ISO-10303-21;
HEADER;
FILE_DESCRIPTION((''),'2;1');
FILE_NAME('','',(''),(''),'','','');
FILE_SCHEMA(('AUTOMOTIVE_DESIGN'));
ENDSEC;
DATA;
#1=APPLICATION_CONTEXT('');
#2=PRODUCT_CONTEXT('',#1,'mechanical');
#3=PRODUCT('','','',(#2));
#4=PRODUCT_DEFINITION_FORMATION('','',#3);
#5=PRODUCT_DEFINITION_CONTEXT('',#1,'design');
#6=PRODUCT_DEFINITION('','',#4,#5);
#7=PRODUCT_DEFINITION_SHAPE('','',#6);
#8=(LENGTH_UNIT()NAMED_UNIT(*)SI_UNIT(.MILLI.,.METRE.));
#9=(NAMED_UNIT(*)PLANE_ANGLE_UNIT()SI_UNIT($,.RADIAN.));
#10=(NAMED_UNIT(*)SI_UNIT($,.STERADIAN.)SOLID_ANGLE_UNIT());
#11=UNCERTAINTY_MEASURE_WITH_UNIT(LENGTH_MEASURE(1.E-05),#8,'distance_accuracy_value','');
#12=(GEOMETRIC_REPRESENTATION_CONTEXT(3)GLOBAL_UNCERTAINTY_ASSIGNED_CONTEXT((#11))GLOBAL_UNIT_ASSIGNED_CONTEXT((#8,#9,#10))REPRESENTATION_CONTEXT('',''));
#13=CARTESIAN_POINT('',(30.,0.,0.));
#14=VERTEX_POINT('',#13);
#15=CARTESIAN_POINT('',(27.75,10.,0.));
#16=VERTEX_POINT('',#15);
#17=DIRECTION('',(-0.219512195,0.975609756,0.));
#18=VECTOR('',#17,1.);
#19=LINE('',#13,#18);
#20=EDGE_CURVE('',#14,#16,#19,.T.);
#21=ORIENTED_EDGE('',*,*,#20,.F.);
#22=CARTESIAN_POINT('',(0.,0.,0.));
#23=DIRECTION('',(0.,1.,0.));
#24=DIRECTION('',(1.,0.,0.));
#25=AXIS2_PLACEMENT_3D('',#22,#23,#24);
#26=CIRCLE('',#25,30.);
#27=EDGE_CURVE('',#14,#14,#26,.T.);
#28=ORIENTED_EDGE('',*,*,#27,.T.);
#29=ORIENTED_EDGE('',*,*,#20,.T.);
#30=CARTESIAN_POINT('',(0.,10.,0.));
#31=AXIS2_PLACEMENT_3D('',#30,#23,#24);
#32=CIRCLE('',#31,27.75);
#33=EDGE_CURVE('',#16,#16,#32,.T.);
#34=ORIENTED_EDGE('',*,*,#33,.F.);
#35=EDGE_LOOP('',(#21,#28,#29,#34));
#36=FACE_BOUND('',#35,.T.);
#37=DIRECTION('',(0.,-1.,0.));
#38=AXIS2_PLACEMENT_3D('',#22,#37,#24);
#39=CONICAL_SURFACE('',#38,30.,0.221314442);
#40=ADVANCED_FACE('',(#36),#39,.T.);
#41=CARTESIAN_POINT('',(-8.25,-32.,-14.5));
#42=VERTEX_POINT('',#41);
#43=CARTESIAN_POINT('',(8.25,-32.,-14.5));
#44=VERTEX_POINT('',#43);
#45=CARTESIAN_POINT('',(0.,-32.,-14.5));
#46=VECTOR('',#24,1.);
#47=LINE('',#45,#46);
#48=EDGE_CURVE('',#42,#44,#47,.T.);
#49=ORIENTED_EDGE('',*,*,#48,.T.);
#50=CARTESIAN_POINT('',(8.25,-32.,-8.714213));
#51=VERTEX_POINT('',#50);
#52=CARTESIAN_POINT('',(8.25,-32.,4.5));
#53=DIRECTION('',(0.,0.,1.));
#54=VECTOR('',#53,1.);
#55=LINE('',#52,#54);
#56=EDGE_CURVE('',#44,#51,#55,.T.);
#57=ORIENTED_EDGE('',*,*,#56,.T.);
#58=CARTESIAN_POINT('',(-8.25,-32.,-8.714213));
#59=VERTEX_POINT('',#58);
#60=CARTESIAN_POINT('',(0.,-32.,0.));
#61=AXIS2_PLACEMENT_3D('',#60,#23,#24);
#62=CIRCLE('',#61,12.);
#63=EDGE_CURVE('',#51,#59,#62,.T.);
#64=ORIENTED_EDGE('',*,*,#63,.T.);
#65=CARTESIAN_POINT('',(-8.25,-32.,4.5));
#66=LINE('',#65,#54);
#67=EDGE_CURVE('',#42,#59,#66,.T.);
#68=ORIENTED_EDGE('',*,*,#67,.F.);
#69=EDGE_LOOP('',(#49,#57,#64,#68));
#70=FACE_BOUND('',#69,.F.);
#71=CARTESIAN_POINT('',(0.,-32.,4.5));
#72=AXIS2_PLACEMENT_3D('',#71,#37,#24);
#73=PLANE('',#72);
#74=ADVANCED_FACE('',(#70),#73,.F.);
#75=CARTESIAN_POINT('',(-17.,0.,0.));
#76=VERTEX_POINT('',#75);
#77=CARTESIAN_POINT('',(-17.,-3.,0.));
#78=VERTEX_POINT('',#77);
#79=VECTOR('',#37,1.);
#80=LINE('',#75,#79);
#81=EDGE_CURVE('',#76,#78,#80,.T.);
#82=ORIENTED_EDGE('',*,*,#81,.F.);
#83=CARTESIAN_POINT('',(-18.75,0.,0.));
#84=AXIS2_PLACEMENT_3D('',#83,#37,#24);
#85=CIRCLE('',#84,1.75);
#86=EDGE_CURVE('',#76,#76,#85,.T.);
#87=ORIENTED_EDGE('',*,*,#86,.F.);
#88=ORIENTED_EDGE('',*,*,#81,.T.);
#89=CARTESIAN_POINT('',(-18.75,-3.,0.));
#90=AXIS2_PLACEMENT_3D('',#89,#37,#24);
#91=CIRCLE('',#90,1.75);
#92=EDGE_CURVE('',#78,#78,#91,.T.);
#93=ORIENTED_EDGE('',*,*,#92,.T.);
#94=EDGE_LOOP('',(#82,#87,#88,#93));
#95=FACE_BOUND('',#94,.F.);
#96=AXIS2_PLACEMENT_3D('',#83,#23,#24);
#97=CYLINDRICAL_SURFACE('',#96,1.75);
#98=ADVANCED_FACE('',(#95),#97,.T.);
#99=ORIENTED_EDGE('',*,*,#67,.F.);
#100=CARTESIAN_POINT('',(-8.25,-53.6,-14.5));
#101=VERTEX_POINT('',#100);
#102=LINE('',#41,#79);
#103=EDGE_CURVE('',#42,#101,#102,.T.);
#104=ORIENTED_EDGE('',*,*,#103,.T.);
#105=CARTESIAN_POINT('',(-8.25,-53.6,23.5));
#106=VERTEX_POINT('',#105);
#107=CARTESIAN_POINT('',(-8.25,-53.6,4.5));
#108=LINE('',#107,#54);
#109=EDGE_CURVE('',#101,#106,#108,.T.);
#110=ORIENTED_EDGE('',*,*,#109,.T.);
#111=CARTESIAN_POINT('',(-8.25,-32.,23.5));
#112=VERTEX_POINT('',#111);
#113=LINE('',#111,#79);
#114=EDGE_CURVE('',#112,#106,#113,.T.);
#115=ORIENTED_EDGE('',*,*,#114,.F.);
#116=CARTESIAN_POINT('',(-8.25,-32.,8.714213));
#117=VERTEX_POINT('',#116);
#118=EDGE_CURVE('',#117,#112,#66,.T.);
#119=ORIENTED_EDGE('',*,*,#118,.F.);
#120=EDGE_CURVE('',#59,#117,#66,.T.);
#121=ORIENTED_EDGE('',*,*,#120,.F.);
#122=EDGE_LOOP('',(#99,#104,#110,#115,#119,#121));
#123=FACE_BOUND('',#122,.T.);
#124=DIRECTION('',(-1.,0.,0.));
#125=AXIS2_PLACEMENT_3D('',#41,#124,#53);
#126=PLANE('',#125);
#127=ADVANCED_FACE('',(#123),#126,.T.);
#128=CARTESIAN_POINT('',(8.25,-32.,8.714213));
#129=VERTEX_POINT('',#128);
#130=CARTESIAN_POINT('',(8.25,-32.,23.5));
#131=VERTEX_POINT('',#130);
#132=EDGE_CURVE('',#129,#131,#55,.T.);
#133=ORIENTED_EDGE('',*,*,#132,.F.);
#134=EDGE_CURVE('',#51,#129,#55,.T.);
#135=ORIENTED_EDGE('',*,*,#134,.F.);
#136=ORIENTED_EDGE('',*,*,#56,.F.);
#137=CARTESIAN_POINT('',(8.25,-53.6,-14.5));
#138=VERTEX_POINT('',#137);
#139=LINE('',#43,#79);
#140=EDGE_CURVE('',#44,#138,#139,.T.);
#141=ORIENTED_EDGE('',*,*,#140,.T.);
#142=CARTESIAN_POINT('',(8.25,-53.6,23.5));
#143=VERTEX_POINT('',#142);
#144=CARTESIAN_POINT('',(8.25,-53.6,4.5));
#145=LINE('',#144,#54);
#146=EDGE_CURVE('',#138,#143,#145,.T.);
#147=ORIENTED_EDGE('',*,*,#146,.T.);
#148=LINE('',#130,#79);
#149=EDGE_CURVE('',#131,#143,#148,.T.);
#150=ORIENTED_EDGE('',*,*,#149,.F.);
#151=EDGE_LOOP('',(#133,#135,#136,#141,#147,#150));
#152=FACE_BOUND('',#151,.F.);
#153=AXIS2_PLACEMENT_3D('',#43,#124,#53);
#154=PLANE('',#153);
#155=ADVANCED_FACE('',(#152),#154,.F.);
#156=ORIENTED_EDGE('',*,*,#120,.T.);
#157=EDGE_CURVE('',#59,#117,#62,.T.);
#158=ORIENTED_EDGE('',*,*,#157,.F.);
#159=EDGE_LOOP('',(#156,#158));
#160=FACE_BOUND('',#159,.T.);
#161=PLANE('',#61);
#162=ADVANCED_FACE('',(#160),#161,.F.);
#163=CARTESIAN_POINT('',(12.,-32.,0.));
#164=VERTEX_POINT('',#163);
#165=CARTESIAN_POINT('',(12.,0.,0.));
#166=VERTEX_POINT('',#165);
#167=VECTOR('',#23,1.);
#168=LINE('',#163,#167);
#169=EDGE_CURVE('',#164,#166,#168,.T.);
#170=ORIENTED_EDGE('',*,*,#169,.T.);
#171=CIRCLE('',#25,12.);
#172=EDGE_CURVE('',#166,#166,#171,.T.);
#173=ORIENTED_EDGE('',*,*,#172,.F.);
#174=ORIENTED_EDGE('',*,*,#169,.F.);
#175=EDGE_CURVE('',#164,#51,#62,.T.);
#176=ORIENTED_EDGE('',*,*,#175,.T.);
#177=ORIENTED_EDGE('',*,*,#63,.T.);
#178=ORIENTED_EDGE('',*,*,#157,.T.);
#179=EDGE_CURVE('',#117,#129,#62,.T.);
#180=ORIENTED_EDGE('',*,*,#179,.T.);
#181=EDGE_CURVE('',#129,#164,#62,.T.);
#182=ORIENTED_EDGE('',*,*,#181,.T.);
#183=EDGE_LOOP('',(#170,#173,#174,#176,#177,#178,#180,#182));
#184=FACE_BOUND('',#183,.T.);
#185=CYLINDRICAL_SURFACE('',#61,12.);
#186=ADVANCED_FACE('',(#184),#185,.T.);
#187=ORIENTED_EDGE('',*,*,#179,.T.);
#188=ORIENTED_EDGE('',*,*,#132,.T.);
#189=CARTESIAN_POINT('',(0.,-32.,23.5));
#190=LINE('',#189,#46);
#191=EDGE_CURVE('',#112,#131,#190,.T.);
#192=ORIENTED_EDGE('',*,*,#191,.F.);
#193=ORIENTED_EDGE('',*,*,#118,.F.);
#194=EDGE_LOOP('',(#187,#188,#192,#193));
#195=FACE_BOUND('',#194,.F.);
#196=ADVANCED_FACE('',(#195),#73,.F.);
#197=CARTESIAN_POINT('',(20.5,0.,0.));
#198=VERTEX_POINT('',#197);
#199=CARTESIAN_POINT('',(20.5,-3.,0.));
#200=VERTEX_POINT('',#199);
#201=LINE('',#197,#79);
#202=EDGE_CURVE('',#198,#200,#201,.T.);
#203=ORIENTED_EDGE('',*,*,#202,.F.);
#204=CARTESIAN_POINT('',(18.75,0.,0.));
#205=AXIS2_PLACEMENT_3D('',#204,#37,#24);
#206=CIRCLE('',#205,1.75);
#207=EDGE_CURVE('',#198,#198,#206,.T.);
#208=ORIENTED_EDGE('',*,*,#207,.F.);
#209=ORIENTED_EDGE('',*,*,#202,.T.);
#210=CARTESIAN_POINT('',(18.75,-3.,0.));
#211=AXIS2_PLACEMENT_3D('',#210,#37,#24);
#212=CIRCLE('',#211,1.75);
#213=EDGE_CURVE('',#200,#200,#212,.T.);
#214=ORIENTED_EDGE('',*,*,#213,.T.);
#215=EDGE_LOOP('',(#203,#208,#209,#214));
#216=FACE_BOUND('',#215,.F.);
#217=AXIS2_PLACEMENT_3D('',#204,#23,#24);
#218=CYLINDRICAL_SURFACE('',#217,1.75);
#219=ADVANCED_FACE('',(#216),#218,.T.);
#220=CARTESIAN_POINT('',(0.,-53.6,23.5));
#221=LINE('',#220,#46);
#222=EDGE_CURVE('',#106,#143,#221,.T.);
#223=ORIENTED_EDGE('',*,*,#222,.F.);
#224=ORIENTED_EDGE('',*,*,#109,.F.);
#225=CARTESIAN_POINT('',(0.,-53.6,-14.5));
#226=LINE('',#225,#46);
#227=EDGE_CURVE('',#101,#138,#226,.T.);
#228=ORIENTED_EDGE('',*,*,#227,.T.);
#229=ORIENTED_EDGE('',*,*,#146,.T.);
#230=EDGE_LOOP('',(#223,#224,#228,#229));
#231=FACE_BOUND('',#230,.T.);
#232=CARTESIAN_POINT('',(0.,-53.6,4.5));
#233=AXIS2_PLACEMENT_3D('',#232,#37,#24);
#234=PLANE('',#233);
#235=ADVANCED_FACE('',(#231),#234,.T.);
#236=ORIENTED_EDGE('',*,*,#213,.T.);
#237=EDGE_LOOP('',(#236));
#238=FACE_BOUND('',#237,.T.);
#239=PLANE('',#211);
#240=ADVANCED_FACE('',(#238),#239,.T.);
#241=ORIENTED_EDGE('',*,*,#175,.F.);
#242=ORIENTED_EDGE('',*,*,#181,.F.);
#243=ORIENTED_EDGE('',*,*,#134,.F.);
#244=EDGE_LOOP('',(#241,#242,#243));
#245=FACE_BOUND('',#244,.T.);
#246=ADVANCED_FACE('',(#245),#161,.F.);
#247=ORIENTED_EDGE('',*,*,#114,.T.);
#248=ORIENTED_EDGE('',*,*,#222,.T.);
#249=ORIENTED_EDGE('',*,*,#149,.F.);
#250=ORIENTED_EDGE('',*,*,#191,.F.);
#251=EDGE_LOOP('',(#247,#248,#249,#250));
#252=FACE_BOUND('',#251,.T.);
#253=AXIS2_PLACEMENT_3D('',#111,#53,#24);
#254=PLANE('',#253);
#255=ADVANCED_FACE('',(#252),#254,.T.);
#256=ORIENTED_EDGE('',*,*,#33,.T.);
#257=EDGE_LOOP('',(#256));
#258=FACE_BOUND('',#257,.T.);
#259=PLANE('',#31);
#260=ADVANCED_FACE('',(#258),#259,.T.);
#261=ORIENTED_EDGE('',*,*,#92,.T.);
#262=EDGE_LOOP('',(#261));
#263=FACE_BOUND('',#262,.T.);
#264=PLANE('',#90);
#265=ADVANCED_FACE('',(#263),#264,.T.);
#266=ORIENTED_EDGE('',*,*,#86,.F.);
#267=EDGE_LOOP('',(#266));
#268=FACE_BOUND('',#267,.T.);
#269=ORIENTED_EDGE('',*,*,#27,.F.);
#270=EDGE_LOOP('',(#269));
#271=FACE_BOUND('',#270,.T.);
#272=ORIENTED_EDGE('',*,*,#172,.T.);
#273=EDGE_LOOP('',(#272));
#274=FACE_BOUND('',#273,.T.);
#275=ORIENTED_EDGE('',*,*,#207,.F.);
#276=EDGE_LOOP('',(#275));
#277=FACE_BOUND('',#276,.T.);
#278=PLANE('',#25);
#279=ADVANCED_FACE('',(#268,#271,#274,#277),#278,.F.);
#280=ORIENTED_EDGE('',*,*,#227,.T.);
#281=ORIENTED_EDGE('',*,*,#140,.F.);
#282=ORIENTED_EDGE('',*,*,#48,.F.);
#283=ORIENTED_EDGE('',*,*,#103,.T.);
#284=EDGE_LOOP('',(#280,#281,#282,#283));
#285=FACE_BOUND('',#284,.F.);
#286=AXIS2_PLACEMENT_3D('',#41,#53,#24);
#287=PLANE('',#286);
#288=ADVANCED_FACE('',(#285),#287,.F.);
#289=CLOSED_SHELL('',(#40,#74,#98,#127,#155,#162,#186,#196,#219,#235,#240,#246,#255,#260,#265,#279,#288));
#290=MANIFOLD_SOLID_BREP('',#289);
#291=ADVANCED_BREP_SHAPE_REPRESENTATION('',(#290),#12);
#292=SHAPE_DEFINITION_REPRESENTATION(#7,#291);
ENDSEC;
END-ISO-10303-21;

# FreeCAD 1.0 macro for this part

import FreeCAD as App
import Part
import Sketcher

V = App.Vector
Q = App.Units.Quantity

doc = App.newDocument("Part")
body = doc.addObject("PartDesign::Body", "Body")

# Sketch on XY plane
sketch1 = body.newObject("Sketcher::SketchObject", "Sketch")
sketch1.AttachmentSupport = (doc.getObject("XY_Plane"), [""])
sketch1.MapMode = "FlatFace"
sketch1.addGeometry([
    Part.LineSegment(V(0, -32, 0), V(12, -32, 0)),  # 0
    Part.LineSegment(V(12, -32, 0), V(12, 0, 0)),  # 1
    Part.LineSegment(V(12, 0, 0), V(30, 0, 0)),  # 2
    Part.LineSegment(V(30, 0, 0), V(28, 10, 0)),  # 3
    Part.LineSegment(V(28, 10, 0), V(0, 10, 0)),  # 4
    Part.LineSegment(V(0, 10, 0), V(0, -32, 0)),  # 5
], False)
sketch1.addConstraint([
    Sketcher.Constraint("Coincident", 0, 2, 1, 1),
    Sketcher.Constraint("Coincident", 1, 2, 2, 1),
    Sketcher.Constraint("Coincident", 2, 2, 3, 1),
    Sketcher.Constraint("Coincident", 3, 2, 4, 1),
    Sketcher.Constraint("Coincident", 4, 2, 5, 1),
    Sketcher.Constraint("Coincident", 5, 2, 0, 1),
    Sketcher.Constraint("Horizontal", 0),
    Sketcher.Constraint("Vertical", 1),
    Sketcher.Constraint("Horizontal", 2),
    Sketcher.Constraint("Horizontal", 4),
    Sketcher.Constraint("Vertical", 5),
    Sketcher.Constraint("PointOnObject", 1, 2, -1),
    Sketcher.Constraint("PointOnObject", 4, 2, -2),
    Sketcher.Constraint("DistanceX", 0, 1, 0, 2, Q("12 mm")),
    Sketcher.Constraint("DistanceX", 2, 1, 2, 2, Q("18 mm")),
    Sketcher.Constraint("DistanceY", 1, 1, 1, 2, Q("32 mm")),
    Sketcher.Constraint("DistanceY", 5, 2, 5, 1, Q("42 mm")),
    Sketcher.Constraint("DistanceX", 4, 2, 4, 1, Q("27.75 mm")),
])
revolution = body.newObject("PartDesign::Revolution", "Revolution")
revolution.Profile = sketch1
revolution.ReferenceAxis = (sketch1, ["V_Axis"])
revolution.Angle = 360

# Sketch on XZ plane
sketch2 = body.newObject("Sketcher::SketchObject", "Sketch001")
sketch2.AttachmentSupport = (doc.getObject("XZ_Plane"), [""])
sketch2.MapMode = "FlatFace"
sketch2.addGeometry([
    Part.Circle(V(18.8, 0, 0), V(0, 0, 1), 1.8),
    Part.Circle(V(-18.8, 0, 0), V(0, 0, 1), 1.8),
], False)
sketch2.addConstraint([
    Sketcher.Constraint("Equal", 0, 1),
    Sketcher.Constraint("Symmetric", 0, 3, 1, 3, -1, 1),
    Sketcher.Constraint("PointOnObject", 0, 3, -1),
    Sketcher.Constraint("Diameter", 0, Q("3.5 mm")),
    Sketcher.Constraint("DistanceX", 1, 3, 0, 3, Q("37.5 mm")),
])
pad1 = body.newObject("PartDesign::Pad", "Pad")
pad1.Profile = sketch2
pad1.Length = 3

# Sketch on XZ plane
sketch3 = body.newObject("Sketcher::SketchObject", "Sketch002")
sketch3.AttachmentSupport = (doc.getObject("XZ_Plane"), [""])
sketch3.MapMode = "FlatFace"
sketch3.AttachmentOffset = App.Placement(V(0, 0, 32), App.Rotation())
sketch3.addGeometry([
    Part.LineSegment(V(-8, 24, 0), V(-8, -14, 0)),
    Part.LineSegment(V(-8, -14, 0), V(8, -14, 0)),
    Part.LineSegment(V(8, -14, 0), V(8, 24, 0)),
    Part.LineSegment(V(8, 24, 0), V(-8, 24, 0)),
], False)
sketch3.addConstraint([
    Sketcher.Constraint("Coincident", 0, 2, 1, 1),
    Sketcher.Constraint("Coincident", 1, 2, 2, 1),
    Sketcher.Constraint("Coincident", 2, 2, 3, 1),
    Sketcher.Constraint("Coincident", 3, 2, 0, 1),
    Sketcher.Constraint("Vertical", 0),
    Sketcher.Constraint("Horizontal", 1),
    Sketcher.Constraint("Vertical", 2),
    Sketcher.Constraint("Horizontal", 3),
    Sketcher.Constraint("DistanceY", 0, 2, 0, 1, Q("38 mm")),
    Sketcher.Constraint("DistanceX", 1, 1, 1, 2, Q("16.5 mm")),
    Sketcher.Constraint("DistanceY", 0, 2, -1, 1, Q("14.5 mm")),
    Sketcher.Constraint("DistanceX", 0, 2, -1, 1, Q("8.25 mm")),
])
pad2 = body.newObject("PartDesign::Pad", "Pad001")
pad2.Profile = sketch3
pad2.Length = 21.6

doc.recompute()
